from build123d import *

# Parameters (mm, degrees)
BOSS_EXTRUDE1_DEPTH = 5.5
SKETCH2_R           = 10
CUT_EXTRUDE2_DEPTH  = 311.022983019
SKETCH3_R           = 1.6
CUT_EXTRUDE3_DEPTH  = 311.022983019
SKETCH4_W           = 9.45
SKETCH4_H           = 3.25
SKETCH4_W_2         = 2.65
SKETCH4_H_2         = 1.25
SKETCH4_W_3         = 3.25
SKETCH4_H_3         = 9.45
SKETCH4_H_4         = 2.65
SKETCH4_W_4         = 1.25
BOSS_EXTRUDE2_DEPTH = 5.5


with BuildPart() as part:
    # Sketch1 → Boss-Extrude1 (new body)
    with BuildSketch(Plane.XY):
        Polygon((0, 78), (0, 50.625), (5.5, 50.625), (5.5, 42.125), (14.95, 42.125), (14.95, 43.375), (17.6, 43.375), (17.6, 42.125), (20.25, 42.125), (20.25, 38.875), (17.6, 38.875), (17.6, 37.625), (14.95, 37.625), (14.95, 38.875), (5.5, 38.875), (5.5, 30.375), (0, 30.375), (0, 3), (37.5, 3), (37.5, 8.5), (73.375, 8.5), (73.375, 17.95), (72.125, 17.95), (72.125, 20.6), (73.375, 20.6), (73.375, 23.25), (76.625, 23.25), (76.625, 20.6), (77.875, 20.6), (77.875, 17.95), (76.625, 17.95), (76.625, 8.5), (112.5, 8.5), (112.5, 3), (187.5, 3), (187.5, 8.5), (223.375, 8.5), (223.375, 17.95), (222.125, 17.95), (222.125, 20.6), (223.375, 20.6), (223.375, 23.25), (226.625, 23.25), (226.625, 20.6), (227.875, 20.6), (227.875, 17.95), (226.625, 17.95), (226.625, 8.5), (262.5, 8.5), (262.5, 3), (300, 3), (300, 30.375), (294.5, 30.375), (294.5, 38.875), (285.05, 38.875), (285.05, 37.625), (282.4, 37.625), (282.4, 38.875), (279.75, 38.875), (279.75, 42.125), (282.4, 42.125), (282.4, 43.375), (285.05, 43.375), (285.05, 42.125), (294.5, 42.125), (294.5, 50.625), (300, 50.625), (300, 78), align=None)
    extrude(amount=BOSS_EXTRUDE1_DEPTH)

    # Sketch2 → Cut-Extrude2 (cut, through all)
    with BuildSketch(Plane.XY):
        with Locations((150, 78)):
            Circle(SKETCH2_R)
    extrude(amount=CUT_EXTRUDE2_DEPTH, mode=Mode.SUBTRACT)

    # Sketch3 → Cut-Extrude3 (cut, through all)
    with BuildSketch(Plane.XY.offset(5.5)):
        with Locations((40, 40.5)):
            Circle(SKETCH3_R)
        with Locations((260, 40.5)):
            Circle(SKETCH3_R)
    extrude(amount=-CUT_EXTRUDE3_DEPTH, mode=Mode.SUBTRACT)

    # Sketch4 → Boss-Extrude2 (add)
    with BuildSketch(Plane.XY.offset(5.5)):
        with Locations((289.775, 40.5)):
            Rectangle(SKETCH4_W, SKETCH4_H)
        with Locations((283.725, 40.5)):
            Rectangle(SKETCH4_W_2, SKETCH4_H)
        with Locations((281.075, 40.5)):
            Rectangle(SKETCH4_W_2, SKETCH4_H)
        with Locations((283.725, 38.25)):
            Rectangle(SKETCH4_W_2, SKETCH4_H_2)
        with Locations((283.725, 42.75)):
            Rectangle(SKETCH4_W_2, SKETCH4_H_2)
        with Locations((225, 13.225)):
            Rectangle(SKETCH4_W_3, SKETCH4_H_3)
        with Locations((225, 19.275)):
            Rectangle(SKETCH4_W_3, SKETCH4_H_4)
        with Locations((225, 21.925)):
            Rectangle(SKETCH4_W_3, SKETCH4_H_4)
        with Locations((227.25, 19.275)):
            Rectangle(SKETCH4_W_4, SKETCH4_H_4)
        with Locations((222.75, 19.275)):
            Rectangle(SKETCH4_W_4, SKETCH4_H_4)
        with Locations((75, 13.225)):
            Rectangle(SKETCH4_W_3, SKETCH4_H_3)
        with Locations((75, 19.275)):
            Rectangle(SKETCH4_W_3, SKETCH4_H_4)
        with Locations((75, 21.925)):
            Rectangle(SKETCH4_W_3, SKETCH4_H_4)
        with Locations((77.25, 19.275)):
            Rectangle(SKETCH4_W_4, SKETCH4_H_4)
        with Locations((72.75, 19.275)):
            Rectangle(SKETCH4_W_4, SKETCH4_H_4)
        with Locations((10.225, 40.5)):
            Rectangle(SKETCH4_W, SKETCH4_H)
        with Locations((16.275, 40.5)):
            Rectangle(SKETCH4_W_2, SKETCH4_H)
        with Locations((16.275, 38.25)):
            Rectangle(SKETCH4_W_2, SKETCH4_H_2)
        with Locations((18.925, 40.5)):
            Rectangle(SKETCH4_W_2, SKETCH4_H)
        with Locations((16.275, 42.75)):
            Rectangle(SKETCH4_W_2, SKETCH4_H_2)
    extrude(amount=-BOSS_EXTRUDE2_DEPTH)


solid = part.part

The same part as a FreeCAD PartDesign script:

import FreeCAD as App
import Part
import Sketcher

V = App.Vector
Q = App.Units.Quantity

doc = App.newDocument("Part")
body = doc.addObject("PartDesign::Body", "Body")

# Sketch on XY plane
sketch1 = doc.addObject("Sketcher::SketchObject", "Sketch")
body.addObject(sketch1)
sketch1.AttachmentSupport = (doc.XY_Plane, [""])
sketch1.MapMode = "FlatFace"
sketch1.addGeometry([
    Part.LineSegment(V(0, 78, 0), V(0, 50.625, 0)),  # 0
    Part.LineSegment(V(0, 50.625, 0), V(5.5, 50.625, 0)),  # 1
    Part.LineSegment(V(5.5, 50.625, 0), V(5.5, 42.125, 0)),  # 2
    Part.LineSegment(V(5.5, 42.125, 0), V(14.95, 42.125, 0)),  # 3
    Part.LineSegment(V(14.95, 42.125, 0), V(14.95, 43.375, 0)),  # 4
    Part.LineSegment(V(14.95, 43.375, 0), V(17.6, 43.375, 0)),  # 5
    Part.LineSegment(V(17.6, 43.375, 0), V(17.6, 42.125, 0)),  # 6
    Part.LineSegment(V(17.6, 42.125, 0), V(20.25, 42.125, 0)),  # 7
    Part.LineSegment(V(20.25, 42.125, 0), V(20.25, 38.875, 0)),  # 8
    Part.LineSegment(V(20.25, 38.875, 0), V(17.6, 38.875, 0)),  # 9
    Part.LineSegment(V(17.6, 38.875, 0), V(17.6, 37.625, 0)),  # 10
    Part.LineSegment(V(17.6, 37.625, 0), V(14.95, 37.625, 0)),  # 11
    Part.LineSegment(V(14.95, 37.625, 0), V(14.95, 38.875, 0)),  # 12
    Part.LineSegment(V(14.95, 38.875, 0), V(5.5, 38.875, 0)),  # 13
    Part.LineSegment(V(5.5, 38.875, 0), V(5.5, 30.375, 0)),  # 14
    Part.LineSegment(V(5.5, 30.375, 0), V(0, 30.375, 0)),  # 15
    Part.LineSegment(V(0, 30.375, 0), V(0, 3, 0)),  # 16
    Part.LineSegment(V(0, 3, 0), V(37.5, 3, 0)),  # 17
    Part.LineSegment(V(37.5, 3, 0), V(37.5, 8.5, 0)),  # 18
    Part.LineSegment(V(37.5, 8.5, 0), V(73.375, 8.5, 0)),  # 19
    Part.LineSegment(V(73.375, 8.5, 0), V(73.375, 17.95, 0)),  # 20
    Part.LineSegment(V(73.375, 17.95, 0), V(72.125, 17.95, 0)),  # 21
    Part.LineSegment(V(72.125, 17.95, 0), V(72.125, 20.6, 0)),  # 22
    Part.LineSegment(V(72.125, 20.6, 0), V(73.375, 20.6, 0)),  # 23
    Part.LineSegment(V(73.375, 20.6, 0), V(73.375, 23.25, 0)),  # 24
    Part.LineSegment(V(73.375, 23.25, 0), V(76.625, 23.25, 0)),  # 25
    Part.LineSegment(V(76.625, 23.25, 0), V(76.625, 20.6, 0)),  # 26
    Part.LineSegment(V(76.625, 20.6, 0), V(77.875, 20.6, 0)),  # 27
    Part.LineSegment(V(77.875, 20.6, 0), V(77.875, 17.95, 0)),  # 28
    Part.LineSegment(V(77.875, 17.95, 0), V(76.625, 17.95, 0)),  # 29
    Part.LineSegment(V(76.625, 17.95, 0), V(76.625, 8.5, 0)),  # 30
    Part.LineSegment(V(76.625, 8.5, 0), V(112.5, 8.5, 0)),  # 31
    Part.LineSegment(V(112.5, 8.5, 0), V(112.5, 3, 0)),  # 32
    Part.LineSegment(V(112.5, 3, 0), V(187.5, 3, 0)),  # 33
    Part.LineSegment(V(187.5, 3, 0), V(187.5, 8.5, 0)),  # 34
    Part.LineSegment(V(187.5, 8.5, 0), V(223.375, 8.5, 0)),  # 35
    Part.LineSegment(V(223.375, 8.5, 0), V(223.375, 17.95, 0)),  # 36
    Part.LineSegment(V(223.375, 17.95, 0), V(222.125, 17.95, 0)),  # 37
    Part.LineSegment(V(222.125, 17.95, 0), V(222.125, 20.6, 0)),  # 38
    Part.LineSegment(V(222.125, 20.6, 0), V(223.375, 20.6, 0)),  # 39
    Part.LineSegment(V(223.375, 20.6, 0), V(223.375, 23.25, 0)),  # 40
    Part.LineSegment(V(223.375, 23.25, 0), V(226.625, 23.25, 0)),  # 41
    Part.LineSegment(V(226.625, 23.25, 0), V(226.625, 20.6, 0)),  # 42
    Part.LineSegment(V(226.625, 20.6, 0), V(227.875, 20.6, 0)),  # 43
    Part.LineSegment(V(227.875, 20.6, 0), V(227.875, 17.95, 0)),  # 44
    Part.LineSegment(V(227.875, 17.95, 0), V(226.625, 17.95, 0)),  # 45
    Part.LineSegment(V(226.625, 17.95, 0), V(226.625, 8.5, 0)),  # 46
    Part.LineSegment(V(226.625, 8.5, 0), V(262.5, 8.5, 0)),  # 47
    Part.LineSegment(V(262.5, 8.5, 0), V(262.5, 3, 0)),  # 48
    Part.LineSegment(V(262.5, 3, 0), V(300, 3, 0)),  # 49
    Part.LineSegment(V(300, 3, 0), V(300, 30.375, 0)),  # 50
    Part.LineSegment(V(300, 30.375, 0), V(294.5, 30.375, 0)),  # 51
    Part.LineSegment(V(294.5, 30.375, 0), V(294.5, 38.875, 0)),  # 52
    Part.LineSegment(V(294.5, 38.875, 0), V(285.05, 38.875, 0)),  # 53
    Part.LineSegment(V(285.05, 38.875, 0), V(285.05, 37.625, 0)),  # 54
    Part.LineSegment(V(285.05, 37.625, 0), V(282.4, 37.625, 0)),  # 55
    Part.LineSegment(V(282.4, 37.625, 0), V(282.4, 38.875, 0)),  # 56
    Part.LineSegment(V(282.4, 38.875, 0), V(279.75, 38.875, 0)),  # 57
    Part.LineSegment(V(279.75, 38.875, 0), V(279.75, 42.125, 0)),  # 58
    Part.LineSegment(V(279.75, 42.125, 0), V(282.4, 42.125, 0)),  # 59
    Part.LineSegment(V(282.4, 42.125, 0), V(282.4, 43.375, 0)),  # 60
    Part.LineSegment(V(282.4, 43.375, 0), V(285.05, 43.375, 0)),  # 61
    Part.LineSegment(V(285.05, 43.375, 0), V(285.05, 42.125, 0)),  # 62
    Part.LineSegment(V(285.05, 42.125, 0), V(294.5, 42.125, 0)),  # 63
    Part.LineSegment(V(294.5, 42.125, 0), V(294.5, 50.625, 0)),  # 64
    Part.LineSegment(V(294.5, 50.625, 0), V(300, 50.625, 0)),  # 65
    Part.LineSegment(V(300, 50.625, 0), V(300, 78, 0)),  # 66
    Part.LineSegment(V(300, 78, 0), V(0, 78, 0)),  # 67
], False)
sketch1.addConstraint([
    Sketcher.Constraint("Coincident", 0, 2, 1, 1),
    Sketcher.Constraint("Coincident", 1, 2, 2, 1),
    Sketcher.Constraint("Coincident", 2, 2, 3, 1),
    Sketcher.Constraint("Coincident", 3, 2, 4, 1),
    Sketcher.Constraint("Coincident", 4, 2, 5, 1),
    Sketcher.Constraint("Coincident", 5, 2, 6, 1),
    Sketcher.Constraint("Coincident", 6, 2, 7, 1),
    Sketcher.Constraint("Coincident", 7, 2, 8, 1),
    Sketcher.Constraint("Coincident", 8, 2, 9, 1),
    Sketcher.Constraint("Coincident", 9, 2, 10, 1),
    Sketcher.Constraint("Coincident", 10, 2, 11, 1),
    Sketcher.Constraint("Coincident", 11, 2, 12, 1),
    Sketcher.Constraint("Coincident", 12, 2, 13, 1),
    Sketcher.Constraint("Coincident", 13, 2, 14, 1),
    Sketcher.Constraint("Coincident", 14, 2, 15, 1),
    Sketcher.Constraint("Coincident", 15, 2, 16, 1),
    Sketcher.Constraint("Coincident", 16, 2, 17, 1),
    Sketcher.Constraint("Coincident", 17, 2, 18, 1),
    Sketcher.Constraint("Coincident", 18, 2, 19, 1),
    Sketcher.Constraint("Coincident", 19, 2, 20, 1),
    Sketcher.Constraint("Coincident", 20, 2, 21, 1),
    Sketcher.Constraint("Coincident", 21, 2, 22, 1),
    Sketcher.Constraint("Coincident", 22, 2, 23, 1),
    Sketcher.Constraint("Coincident", 23, 2, 24, 1),
    Sketcher.Constraint("Coincident", 24, 2, 25, 1),
    Sketcher.Constraint("Coincident", 25, 2, 26, 1),
    Sketcher.Constraint("Coincident", 26, 2, 27, 1),
    Sketcher.Constraint("Coincident", 27, 2, 28, 1),
    Sketcher.Constraint("Coincident", 28, 2, 29, 1),
    Sketcher.Constraint("Coincident", 29, 2, 30, 1),
    Sketcher.Constraint("Coincident", 30, 2, 31, 1),
    Sketcher.Constraint("Coincident", 31, 2, 32, 1),
    Sketcher.Constraint("Coincident", 32, 2, 33, 1),
    Sketcher.Constraint("Coincident", 33, 2, 34, 1),
    Sketcher.Constraint("Coincident", 34, 2, 35, 1),
    Sketcher.Constraint("Coincident", 35, 2, 36, 1),
    Sketcher.Constraint("Coincident", 36, 2, 37, 1),
    Sketcher.Constraint("Coincident", 37, 2, 38, 1),
    Sketcher.Constraint("Coincident", 38, 2, 39, 1),
    Sketcher.Constraint("Coincident", 39, 2, 40, 1),
    Sketcher.Constraint("Coincident", 40, 2, 41, 1),
    Sketcher.Constraint("Coincident", 41, 2, 42, 1),
    Sketcher.Constraint("Coincident", 42, 2, 43, 1),
    Sketcher.Constraint("Coincident", 43, 2, 44, 1),
    Sketcher.Constraint("Coincident", 44, 2, 45, 1),
    Sketcher.Constraint("Coincident", 45, 2, 46, 1),
    Sketcher.Constraint("Coincident", 46, 2, 47, 1),
    Sketcher.Constraint("Coincident", 47, 2, 48, 1),
    Sketcher.Constraint("Coincident", 48, 2, 49, 1),
    Sketcher.Constraint("Coincident", 49, 2, 50, 1),
    Sketcher.Constraint("Coincident", 50, 2, 51, 1),
    Sketcher.Constraint("Coincident", 51, 2, 52, 1),
    Sketcher.Constraint("Coincident", 52, 2, 53, 1),
    Sketcher.Constraint("Coincident", 53, 2, 54, 1),
    Sketcher.Constraint("Coincident", 54, 2, 55, 1),
    Sketcher.Constraint("Coincident", 55, 2, 56, 1),
    Sketcher.Constraint("Coincident", 56, 2, 57, 1),
    Sketcher.Constraint("Coincident", 57, 2, 58, 1),
    Sketcher.Constraint("Coincident", 58, 2, 59, 1),
    Sketcher.Constraint("Coincident", 59, 2, 60, 1),
    Sketcher.Constraint("Coincident", 60, 2, 61, 1),
    Sketcher.Constraint("Coincident", 61, 2, 62, 1),
    Sketcher.Constraint("Coincident", 62, 2, 63, 1),
    Sketcher.Constraint("Coincident", 63, 2, 64, 1),
    Sketcher.Constraint("Coincident", 64, 2, 65, 1),
    Sketcher.Constraint("Coincident", 65, 2, 66, 1),
    Sketcher.Constraint("Coincident", 66, 2, 67, 1),
    Sketcher.Constraint("Coincident", 67, 2, 0, 1),
    Sketcher.Constraint("Vertical", 0),
    Sketcher.Constraint("Horizontal", 1),
    Sketcher.Constraint("Vertical", 2),
    Sketcher.Constraint("Horizontal", 3),
    Sketcher.Constraint("Vertical", 4),
    Sketcher.Constraint("Horizontal", 5),
    Sketcher.Constraint("Vertical", 6),
    Sketcher.Constraint("Horizontal", 7),
    Sketcher.Constraint("Vertical", 8),
    Sketcher.Constraint("Horizontal", 9),
    Sketcher.Constraint("Vertical", 10),
    Sketcher.Constraint("Horizontal", 11),
    Sketcher.Constraint("Vertical", 12),
    Sketcher.Constraint("Horizontal", 13),
    Sketcher.Constraint("Vertical", 14),
    Sketcher.Constraint("Horizontal", 15),
    Sketcher.Constraint("Vertical", 16),
    Sketcher.Constraint("Horizontal", 17),
    Sketcher.Constraint("Vertical", 18),
    Sketcher.Constraint("Horizontal", 19),
    Sketcher.Constraint("Vertical", 20),
    Sketcher.Constraint("Horizontal", 21),
    Sketcher.Constraint("Vertical", 22),
    Sketcher.Constraint("Horizontal", 23),
    Sketcher.Constraint("Vertical", 24),
    Sketcher.Constraint("Horizontal", 25),
    Sketcher.Constraint("Vertical", 26),
    Sketcher.Constraint("Horizontal", 27),
    Sketcher.Constraint("Vertical", 28),
    Sketcher.Constraint("Horizontal", 29),
    Sketcher.Constraint("Vertical", 30),
    Sketcher.Constraint("Horizontal", 31),
    Sketcher.Constraint("Vertical", 32),
    Sketcher.Constraint("Horizontal", 33),
    Sketcher.Constraint("Vertical", 34),
    Sketcher.Constraint("Horizontal", 35),
    Sketcher.Constraint("Vertical", 36),
    Sketcher.Constraint("Horizontal", 37),
    Sketcher.Constraint("Vertical", 38),
    Sketcher.Constraint("Horizontal", 39),
    Sketcher.Constraint("Vertical", 40),
    Sketcher.Constraint("Horizontal", 41),
    Sketcher.Constraint("Vertical", 42),
    Sketcher.Constraint("Horizontal", 43),
    Sketcher.Constraint("Vertical", 44),
    Sketcher.Constraint("Horizontal", 45),
    Sketcher.Constraint("Vertical", 46),
    Sketcher.Constraint("Horizontal", 47),
    Sketcher.Constraint("Vertical", 48),
    Sketcher.Constraint("Horizontal", 49),
    Sketcher.Constraint("Vertical", 50),
    Sketcher.Constraint("Horizontal", 51),
    Sketcher.Constraint("Vertical", 52),
    Sketcher.Constraint("Horizontal", 53),
    Sketcher.Constraint("Vertical", 54),
    Sketcher.Constraint("Horizontal", 55),
    Sketcher.Constraint("Vertical", 56),
    Sketcher.Constraint("Horizontal", 57),
    Sketcher.Constraint("Vertical", 58),
    Sketcher.Constraint("Horizontal", 59),
    Sketcher.Constraint("Vertical", 60),
    Sketcher.Constraint("Horizontal", 61),
    Sketcher.Constraint("Vertical", 62),
    Sketcher.Constraint("Horizontal", 63),
    Sketcher.Constraint("Vertical", 64),
    Sketcher.Constraint("Horizontal", 65),
    Sketcher.Constraint("Vertical", 66),
    Sketcher.Constraint("Horizontal", 67),
    Sketcher.Constraint("PointOnObject", 0, 2, -2),
    Sketcher.Constraint("PointOnObject", 15, 2, -2),
    Sketcher.Constraint("Horizontal", 3, 2, 6, 2),
    Sketcher.Constraint("Horizontal", 9, 2, 12, 2),
    Sketcher.Constraint("Horizontal", 23, 2, 26, 2),
    Sketcher.Constraint("Horizontal", 21, 2, 28, 2),
    Sketcher.Constraint("Horizontal", 19, 2, 30, 2),
    Sketcher.Constraint("Horizontal", 17, 2, 32, 2),
    Sketcher.Constraint("Horizontal", 31, 2, 34, 2),
    Sketcher.Constraint("Horizontal", 29, 2, 36, 2),
    Sketcher.Constraint("Horizontal", 27, 2, 38, 2),
    Sketcher.Constraint("Horizontal", 25, 2, 40, 2),
    Sketcher.Constraint("Horizontal", 39, 2, 42, 2),
    Sketcher.Constraint("Horizontal", 37, 2, 44, 2),
    Sketcher.Constraint("Horizontal", 35, 2, 46, 2),
    Sketcher.Constraint("Horizontal", 33, 2, 48, 2),
    Sketcher.Constraint("Horizontal", 15, 2, 50, 2),
    Sketcher.Constraint("Horizontal", 13, 2, 52, 2),
    Sketcher.Constraint("Horizontal", 11, 2, 54, 2),
    Sketcher.Constraint("Horizontal", 53, 2, 56, 2),
    Sketcher.Constraint("Horizontal", 7, 2, 58, 2),
    Sketcher.Constraint("Horizontal", 5, 2, 60, 2),
    Sketcher.Constraint("Horizontal", 59, 2, 62, 2),
    Sketcher.Constraint("Horizontal", 1, 2, 64, 2),
    Sketcher.Constraint("Vertical", 6, 2, 9, 2),
    Sketcher.Constraint("Vertical", 4, 2, 11, 2),
    Sketcher.Constraint("Vertical", 2, 2, 13, 2),
    Sketcher.Constraint("Vertical", 20, 2, 23, 2),
    Sketcher.Constraint("Vertical", 26, 2, 29, 2),
    Sketcher.Constraint("Vertical", 36, 2, 39, 2),
    Sketcher.Constraint("Vertical", 42, 2, 45, 2),
    Sketcher.Constraint("Vertical", 56, 2, 59, 2),
    Sketcher.Constraint("Vertical", 54, 2, 61, 2),
    Sketcher.Constraint("Vertical", 52, 2, 63, 2),
    Sketcher.Constraint("Vertical", 50, 2, 65, 2),
    Sketcher.Constraint("Equal", 5, 7),
    Sketcher.Constraint("Equal", 23, 27),
    Sketcher.Constraint("Equal", 19, 31),
    Sketcher.Constraint("Equal", 31, 35),
    Sketcher.Constraint("Equal", 29, 37),
    Sketcher.Constraint("Equal", 25, 41),
    Sketcher.Constraint("Equal", 39, 43),
    Sketcher.Constraint("Equal", 35, 47),
    Sketcher.Constraint("Equal", 17, 49),
    Sketcher.Constraint("Equal", 15, 51),
    Sketcher.Constraint("Equal", 13, 53),
    Sketcher.Constraint("Equal", 11, 55),
    Sketcher.Constraint("Equal", 55, 57),
    Sketcher.Constraint("Equal", 45, 4),
    Sketcher.Constraint("Equal", 41, 8),
    Sketcher.Constraint("Equal", 6, 10),
    Sketcher.Constraint("Equal", 2, 14),
    Sketcher.Constraint("Equal", 0, 16),
    Sketcher.Constraint("Equal", 65, 18),
    Sketcher.Constraint("Equal", 63, 20),
    Sketcher.Constraint("Equal", 61, 22),
    Sketcher.Constraint("Equal", 22, 24),
    Sketcher.Constraint("DistanceX", 33, 1, 33, 2, Q("75 mm")),
    Sketcher.Constraint("DistanceX", 67, 2, 67, 1, Q("300 mm")),
    Sketcher.Constraint("DistanceX", 1, 1, 1, 2, Q("5.5 mm")),
    Sketcher.Constraint("DistanceX", 17, 1, 17, 2, Q("37.5 mm")),
    Sketcher.Constraint("DistanceY", 2, 2, 2, 1, Q("8.5 mm")),
    Sketcher.Constraint("DistanceY", -1, 1, 16, 2, Q("3 mm")),
    Sketcher.Constraint("DistanceY", -1, 1, 66, 2, Q("78 mm")),
    Sketcher.Constraint("DistanceX", 3, 1, 3, 2, Q("9.45 mm")),
    Sketcher.Constraint("DistanceX", 5, 1, 5, 2, Q("2.65 mm")),
    Sketcher.Constraint("DistanceX", 21, 2, 21, 1, Q("1.25 mm")),
    Sketcher.Constraint("DistanceX", 25, 1, 25, 2, Q("3.25 mm")),
])
pad1 = doc.addObject("PartDesign::Pad", "Pad")
body.addObject(pad1)
pad1.Profile = sketch1
pad1.Length = 5.5

# Sketch on XY plane
sketch2 = doc.addObject("Sketcher::SketchObject", "Sketch001")
body.addObject(sketch2)
sketch2.AttachmentSupport = (doc.XY_Plane, [""])
sketch2.MapMode = "FlatFace"
sketch2.addGeometry(Part.Circle(V(150, 78, 0), V(0, 0, 1), 10), False)
sketch2.addConstraint([
    Sketcher.Constraint("Diameter", 0, Q("20 mm")),
    Sketcher.Constraint("DistanceX", -1, 1, 0, 3, Q("150 mm")),
    Sketcher.Constraint("DistanceY", -1, 1, 0, 3, Q("78 mm")),
])
pocket1 = doc.addObject("PartDesign::Pocket", "Pocket")
body.addObject(pocket1)
pocket1.Profile = sketch2
pocket1.Type = "ThroughAll"
pocket1.Reversed = True

# Sketch on XY plane
sketch3 = doc.addObject("Sketcher::SketchObject", "Sketch002")
body.addObject(sketch3)
sketch3.AttachmentSupport = (doc.XY_Plane, [""])
sketch3.MapMode = "FlatFace"
sketch3.AttachmentOffset = App.Placement(V(0, 0, 5.5), App.Rotation())
sketch3.addGeometry([
    Part.Circle(V(40, 40.5, 0), V(0, 0, 1), 1.6),
    Part.Circle(V(260, 40.5, 0), V(0, 0, 1), 1.6),
], False)
sketch3.addConstraint([
    Sketcher.Constraint("Equal", 0, 1),
    Sketcher.Constraint("Horizontal", 0, 3, 1, 3),
    Sketcher.Constraint("Diameter", 0, Q("3.2 mm")),
    Sketcher.Constraint("DistanceX", -1, 1, 0, 3, Q("40 mm")),
    Sketcher.Constraint("DistanceX", -1, 1, 1, 3, Q("260 mm")),
    Sketcher.Constraint("DistanceY", -1, 1, 0, 3, Q("40.5 mm")),
])
pocket2 = doc.addObject("PartDesign::Pocket", "Pocket001")
body.addObject(pocket2)
pocket2.Profile = sketch3
pocket2.Type = "ThroughAll"

# Sketch on XY plane
sketch4 = doc.addObject("Sketcher::SketchObject", "Sketch003")
body.addObject(sketch4)
sketch4.AttachmentSupport = (doc.XY_Plane, [""])
sketch4.MapMode = "FlatFace"
sketch4.AttachmentOffset = App.Placement(V(0, 0, 5.5), App.Rotation())
sketch4.addGeometry([
    Part.LineSegment(V(294.5, 38.875, 0), V(294.5, 42.125, 0)),  # 0
    Part.LineSegment(V(294.5, 42.125, 0), V(285.05, 42.125, 0)),  # 1
    Part.LineSegment(V(285.05, 42.125, 0), V(285.05, 43.375, 0)),  # 2
    Part.LineSegment(V(285.05, 43.375, 0), V(282.4, 43.375, 0)),  # 3
    Part.LineSegment(V(282.4, 43.375, 0), V(282.4, 42.125, 0)),  # 4
    Part.LineSegment(V(282.4, 42.125, 0), V(279.75, 42.125, 0)),  # 5
    Part.LineSegment(V(279.75, 42.125, 0), V(279.75, 38.875, 0)),  # 6
    Part.LineSegment(V(279.75, 38.875, 0), V(282.4, 38.875, 0)),  # 7
    Part.LineSegment(V(282.4, 38.875, 0), V(282.4, 37.625, 0)),  # 8
    Part.LineSegment(V(282.4, 37.625, 0), V(285.05, 37.625, 0)),  # 9
    Part.LineSegment(V(285.05, 37.625, 0), V(285.05, 38.875, 0)),  # 10
    Part.LineSegment(V(285.05, 38.875, 0), V(294.5, 38.875, 0)),  # 11
    Part.LineSegment(V(223.375, 8.5, 0), V(226.625, 8.5, 0)),  # 12
    Part.LineSegment(V(226.625, 8.5, 0), V(226.625, 17.95, 0)),  # 13
    Part.LineSegment(V(226.625, 17.95, 0), V(227.875, 17.95, 0)),  # 14
    Part.LineSegment(V(227.875, 17.95, 0), V(227.875, 20.6, 0)),  # 15
    Part.LineSegment(V(227.875, 20.6, 0), V(226.625, 20.6, 0)),  # 16
    Part.LineSegment(V(226.625, 20.6, 0), V(226.625, 23.25, 0)),  # 17
    Part.LineSegment(V(226.625, 23.25, 0), V(223.375, 23.25, 0)),  # 18
    Part.LineSegment(V(223.375, 23.25, 0), V(223.375, 20.6, 0)),  # 19
    Part.LineSegment(V(223.375, 20.6, 0), V(222.125, 20.6, 0)),  # 20
    Part.LineSegment(V(222.125, 20.6, 0), V(222.125, 17.95, 0)),  # 21
    Part.LineSegment(V(222.125, 17.95, 0), V(223.375, 17.95, 0)),  # 22
    Part.LineSegment(V(223.375, 17.95, 0), V(223.375, 8.5, 0)),  # 23
    Part.LineSegment(V(73.375, 8.5, 0), V(76.625, 8.5, 0)),  # 24
    Part.LineSegment(V(76.625, 8.5, 0), V(76.625, 17.95, 0)),  # 25
    Part.LineSegment(V(76.625, 17.95, 0), V(77.875, 17.95, 0)),  # 26
    Part.LineSegment(V(77.875, 17.95, 0), V(77.875, 20.6, 0)),  # 27
    Part.LineSegment(V(77.875, 20.6, 0), V(76.625, 20.6, 0)),  # 28
    Part.LineSegment(V(76.625, 20.6, 0), V(76.625, 23.25, 0)),  # 29
    Part.LineSegment(V(76.625, 23.25, 0), V(73.375, 23.25, 0)),  # 30
    Part.LineSegment(V(73.375, 23.25, 0), V(73.375, 20.6, 0)),  # 31
    Part.LineSegment(V(73.375, 20.6, 0), V(72.125, 20.6, 0)),  # 32
    Part.LineSegment(V(72.125, 20.6, 0), V(72.125, 17.95, 0)),  # 33
    Part.LineSegment(V(72.125, 17.95, 0), V(73.375, 17.95, 0)),  # 34
    Part.LineSegment(V(73.375, 17.95, 0), V(73.375, 8.5, 0)),  # 35
    Part.LineSegment(V(5.5, 42.125, 0), V(5.5, 38.875, 0)),  # 36
    Part.LineSegment(V(5.5, 38.875, 0), V(14.95, 38.875, 0)),  # 37
    Part.LineSegment(V(14.95, 38.875, 0), V(14.95, 37.625, 0)),  # 38
    Part.LineSegment(V(14.95, 37.625, 0), V(17.6, 37.625, 0)),  # 39
    Part.LineSegment(V(17.6, 37.625, 0), V(17.6, 38.875, 0)),  # 40
    Part.LineSegment(V(17.6, 38.875, 0), V(20.25, 38.875, 0)),  # 41
    Part.LineSegment(V(20.25, 38.875, 0), V(20.25, 42.125, 0)),  # 42
    Part.LineSegment(V(20.25, 42.125, 0), V(17.6, 42.125, 0)),  # 43
    Part.LineSegment(V(17.6, 42.125, 0), V(17.6, 43.375, 0)),  # 44
    Part.LineSegment(V(17.6, 43.375, 0), V(14.95, 43.375, 0)),  # 45
    Part.LineSegment(V(14.95, 43.375, 0), V(14.95, 42.125, 0)),  # 46
    Part.LineSegment(V(14.95, 42.125, 0), V(5.5, 42.125, 0)),  # 47
], False)
sketch4.addConstraint([
    Sketcher.Constraint("Coincident", 0, 2, 1, 1),
    Sketcher.Constraint("Coincident", 1, 2, 2, 1),
    Sketcher.Constraint("Coincident", 2, 2, 3, 1),
    Sketcher.Constraint("Coincident", 3, 2, 4, 1),
    Sketcher.Constraint("Coincident", 4, 2, 5, 1),
    Sketcher.Constraint("Coincident", 5, 2, 6, 1),
    Sketcher.Constraint("Coincident", 6, 2, 7, 1),
    Sketcher.Constraint("Coincident", 7, 2, 8, 1),
    Sketcher.Constraint("Coincident", 8, 2, 9, 1),
    Sketcher.Constraint("Coincident", 9, 2, 10, 1),
    Sketcher.Constraint("Coincident", 10, 2, 11, 1),
    Sketcher.Constraint("Coincident", 11, 2, 0, 1),
    Sketcher.Constraint("Coincident", 12, 2, 13, 1),
    Sketcher.Constraint("Coincident", 13, 2, 14, 1),
    Sketcher.Constraint("Coincident", 14, 2, 15, 1),
    Sketcher.Constraint("Coincident", 15, 2, 16, 1),
    Sketcher.Constraint("Coincident", 16, 2, 17, 1),
    Sketcher.Constraint("Coincident", 17, 2, 18, 1),
    Sketcher.Constraint("Coincident", 18, 2, 19, 1),
    Sketcher.Constraint("Coincident", 19, 2, 20, 1),
    Sketcher.Constraint("Coincident", 20, 2, 21, 1),
    Sketcher.Constraint("Coincident", 21, 2, 22, 1),
    Sketcher.Constraint("Coincident", 22, 2, 23, 1),
    Sketcher.Constraint("Coincident", 23, 2, 12, 1),
    Sketcher.Constraint("Coincident", 24, 2, 25, 1),
    Sketcher.Constraint("Coincident", 25, 2, 26, 1),
    Sketcher.Constraint("Coincident", 26, 2, 27, 1),
    Sketcher.Constraint("Coincident", 27, 2, 28, 1),
    Sketcher.Constraint("Coincident", 28, 2, 29, 1),
    Sketcher.Constraint("Coincident", 29, 2, 30, 1),
    Sketcher.Constraint("Coincident", 30, 2, 31, 1),
    Sketcher.Constraint("Coincident", 31, 2, 32, 1),
    Sketcher.Constraint("Coincident", 32, 2, 33, 1),
    Sketcher.Constraint("Coincident", 33, 2, 34, 1),
    Sketcher.Constraint("Coincident", 34, 2, 35, 1),
    Sketcher.Constraint("Coincident", 35, 2, 24, 1),
    Sketcher.Constraint("Coincident", 36, 2, 37, 1),
    Sketcher.Constraint("Coincident", 37, 2, 38, 1),
    Sketcher.Constraint("Coincident", 38, 2, 39, 1),
    Sketcher.Constraint("Coincident", 39, 2, 40, 1),
    Sketcher.Constraint("Coincident", 40, 2, 41, 1),
    Sketcher.Constraint("Coincident", 41, 2, 42, 1),
    Sketcher.Constraint("Coincident", 42, 2, 43, 1),
    Sketcher.Constraint("Coincident", 43, 2, 44, 1),
    Sketcher.Constraint("Coincident", 44, 2, 45, 1),
    Sketcher.Constraint("Coincident", 45, 2, 46, 1),
    Sketcher.Constraint("Coincident", 46, 2, 47, 1),
    Sketcher.Constraint("Coincident", 47, 2, 36, 1),
    Sketcher.Constraint("Vertical", 0),
    Sketcher.Constraint("Horizontal", 1),
    Sketcher.Constraint("Vertical", 2),
    Sketcher.Constraint("Horizontal", 3),
    Sketcher.Constraint("Vertical", 4),
    Sketcher.Constraint("Horizontal", 5),
    Sketcher.Constraint("Vertical", 6),
    Sketcher.Constraint("Horizontal", 7),
    Sketcher.Constraint("Vertical", 8),
    Sketcher.Constraint("Horizontal", 9),
    Sketcher.Constraint("Vertical", 10),
    Sketcher.Constraint("Horizontal", 11),
    Sketcher.Constraint("Horizontal", 12),
    Sketcher.Constraint("Vertical", 13),
    Sketcher.Constraint("Horizontal", 14),
    Sketcher.Constraint("Vertical", 15),
    Sketcher.Constraint("Horizontal", 16),
    Sketcher.Constraint("Vertical", 17),
    Sketcher.Constraint("Horizontal", 18),
    Sketcher.Constraint("Vertical", 19),
    Sketcher.Constraint("Horizontal", 20),
    Sketcher.Constraint("Vertical", 21),
    Sketcher.Constraint("Horizontal", 22),
    Sketcher.Constraint("Vertical", 23),
    Sketcher.Constraint("Horizontal", 24),
    Sketcher.Constraint("Vertical", 25),
    Sketcher.Constraint("Horizontal", 26),
    Sketcher.Constraint("Vertical", 27),
    Sketcher.Constraint("Horizontal", 28),
    Sketcher.Constraint("Vertical", 29),
    Sketcher.Constraint("Horizontal", 30),
    Sketcher.Constraint("Vertical", 31),
    Sketcher.Constraint("Horizontal", 32),
    Sketcher.Constraint("Vertical", 33),
    Sketcher.Constraint("Horizontal", 34),
    Sketcher.Constraint("Vertical", 35),
    Sketcher.Constraint("Vertical", 36),
    Sketcher.Constraint("Horizontal", 37),
    Sketcher.Constraint("Vertical", 38),
    Sketcher.Constraint("Horizontal", 39),
    Sketcher.Constraint("Vertical", 40),
    Sketcher.Constraint("Horizontal", 41),
    Sketcher.Constraint("Vertical", 42),
    Sketcher.Constraint("Horizontal", 43),
    Sketcher.Constraint("Vertical", 44),
    Sketcher.Constraint("Horizontal", 45),
    Sketcher.Constraint("Vertical", 46),
    Sketcher.Constraint("Horizontal", 47),
    Sketcher.Constraint("Horizontal", 1, 2, 4, 2),
    Sketcher.Constraint("Horizontal", 7, 2, 10, 2),
    Sketcher.Constraint("Horizontal", 16, 2, 19, 2),
    Sketcher.Constraint("Horizontal", 14, 2, 21, 2),
    Sketcher.Constraint("Horizontal", 23, 2, 24, 2),
    Sketcher.Constraint("Horizontal", 22, 2, 25, 2),
    Sketcher.Constraint("Horizontal", 20, 2, 27, 2),
    Sketcher.Constraint("Horizontal", 18, 2, 29, 2),
    Sketcher.Constraint("Horizontal", 28, 2, 31, 2),
    Sketcher.Constraint("Horizontal", 26, 2, 33, 2),
    Sketcher.Constraint("Horizontal", 11, 2, 36, 2),
    Sketcher.Constraint("Horizontal", 9, 2, 38, 2),
    Sketcher.Constraint("Horizontal", 37, 2, 40, 2),
    Sketcher.Constraint("Horizontal", 5, 2, 42, 2),
    Sketcher.Constraint("Horizontal", 3, 2, 44, 2),
    Sketcher.Constraint("Horizontal", 43, 2, 46, 2),
    Sketcher.Constraint("Vertical", 4, 2, 7, 2),
    Sketcher.Constraint("Vertical", 2, 2, 9, 2),
    Sketcher.Constraint("Vertical", 13, 2, 16, 2),
    Sketcher.Constraint("Vertical", 19, 2, 22, 2),
    Sketcher.Constraint("Vertical", 25, 2, 28, 2),
    Sketcher.Constraint("Vertical", 31, 2, 34, 2),
    Sketcher.Constraint("Vertical", 40, 2, 43, 2),
    Sketcher.Constraint("Vertical", 38, 2, 45, 2),
    Sketcher.Constraint("Equal", 3, 5),
    Sketcher.Constraint("Equal", 16, 20),
    Sketcher.Constraint("Equal", 18, 24),
    Sketcher.Constraint("Equal", 22, 26),
    Sketcher.Constraint("Equal", 28, 32),
    Sketcher.Constraint("Equal", 11, 37),
    Sketcher.Constraint("Equal", 9, 39),
    Sketcher.Constraint("Equal", 39, 41),
    Sketcher.Constraint("Equal", 30, 0),
    Sketcher.Constraint("Equal", 34, 2),
    Sketcher.Constraint("Equal", 4, 8),
    Sketcher.Constraint("Equal", 47, 13),
    Sketcher.Constraint("Equal", 45, 15),
    Sketcher.Constraint("Equal", 15, 17),
    Sketcher.Constraint("DistanceX", 1, 2, 1, 1, Q("9.45 mm")),
    Sketcher.Constraint("DistanceX", 3, 2, 3, 1, Q("2.65 mm")),
    Sketcher.Constraint("DistanceX", 12, 1, 12, 2, Q("3.25 mm")),
    Sketcher.Constraint("DistanceX", 14, 1, 14, 2, Q("1.25 mm")),
    Sketcher.Constraint("DistanceX", -1, 1, 0, 2, Q("294.5 mm")),
    Sketcher.Constraint("DistanceY", -1, 1, 12, 2, Q("8.5 mm")),
    Sketcher.Constraint("DistanceX", -1, 1, 36, 2, Q("5.5 mm")),
    Sketcher.Constraint("DistanceX", 24, 2, 21, 2, Q("145.5 mm")),
    Sketcher.Constraint("DistanceY", -1, 1, 0, 2, Q("42.125 mm")),
    Sketcher.Constraint("DistanceX", -1, 1, 12, 2, Q("226.625 mm")),
])
pad2 = doc.addObject("PartDesign::Pad", "Pad001")
body.addObject(pad2)
pad2.Profile = sketch4
pad2.Length = 5.5
pad2.Reversed = True

doc.recompute()
